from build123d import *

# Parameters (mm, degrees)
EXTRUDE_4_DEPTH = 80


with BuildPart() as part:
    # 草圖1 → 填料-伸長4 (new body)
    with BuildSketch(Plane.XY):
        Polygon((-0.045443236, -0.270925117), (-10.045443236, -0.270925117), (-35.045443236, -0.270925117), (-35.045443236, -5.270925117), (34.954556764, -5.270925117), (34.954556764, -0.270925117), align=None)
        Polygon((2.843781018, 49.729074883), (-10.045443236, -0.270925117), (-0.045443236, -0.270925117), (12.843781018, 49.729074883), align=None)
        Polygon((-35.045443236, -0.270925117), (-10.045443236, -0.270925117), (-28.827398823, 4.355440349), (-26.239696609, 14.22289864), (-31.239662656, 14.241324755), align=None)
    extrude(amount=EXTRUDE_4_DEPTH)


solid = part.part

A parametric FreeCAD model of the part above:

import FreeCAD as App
import Part
import Sketcher
Q = App.Units.Quantity


def add_polygon(sketch, points):
    """Adds a closed chain of lines whose ends are joined by coincident constraints."""
    first, n = sketch.GeometryCount, len(points)
    for a, b in zip(points, points[1:] + points[:1]):
        sketch.addGeometry(Part.LineSegment(App.Vector(*a, 0), App.Vector(*b, 0)), False)
    for i in range(n):
        sketch.addConstraint(Sketcher.Constraint("Coincident", first + i, 2, first + (i + 1) % n, 1))

doc = App.newDocument("Part")
body = doc.addObject("PartDesign::Body", "Body")

sketch1 = body.newObject("Sketcher::SketchObject", "Sketch")
sketch1.AttachmentSupport = (doc.getObject("XY_Plane"), [""])
sketch1.MapMode = "FlatFace"
add_polygon(sketch1, [(-35, -0.3), (-35, -5.3), (35, -5.3), (35, -0.3), (0, -0.3), (12.8, 49.7), (2.8, 49.7), (-10, -0.3), (-28.8, 4.4), (-26.2, 14.2), (-31.2, 14.2)])
sketch1.addConstraint(Sketcher.Constraint("Vertical", 0))
sketch1.addConstraint(Sketcher.Constraint("Horizontal", 1))
sketch1.addConstraint(Sketcher.Constraint("Vertical", 2))
sketch1.addConstraint(Sketcher.Constraint("Horizontal", 3))
sketch1.addConstraint(Sketcher.Constraint("Horizontal", 5))
sketch1.addConstraint(Sketcher.Constraint("Parallel", 4, 6))
sketch1.addConstraint(Sketcher.Constraint("Parallel", 8, 10))
sketch1.addConstraint(Sketcher.Constraint("Horizontal", 3, 2, 6, 2))
sketch1.addConstraint(Sketcher.Constraint("Horizontal", 6, 2, 10, 2))
sketch1.addConstraint(Sketcher.Constraint("DistanceX", 1, 1, 1, 2, Q("70 mm")))
sketch1.addConstraint(Sketcher.Constraint("DistanceX", 3, 2, 3, 1, Q("35 mm")))
sketch1.addConstraint(Sketcher.Constraint("DistanceX", 5, 2, 5, 1, Q("10 mm")))
sketch1.addConstraint(Sketcher.Constraint("DistanceY", 0, 2, 0, 1, Q("5 mm")))
sketch1.addConstraint(Sketcher.Constraint("Distance", 9, Q("5 mm")))
sketch1.addConstraint(Sketcher.Constraint("DistanceY", 3, 2, 4, 2, Q("50 mm")))
sketch1.addConstraint(Sketcher.Constraint("Distance", 4, Q("51.634602 mm")))
sketch1.addConstraint(Sketcher.Constraint("DistanceX", 7, 2, -1, 1, Q("28.827399 mm")))
sketch1.addConstraint(Sketcher.Constraint("DistanceY", -1, 1, 8, 2, Q("14.222899 mm")))
sketch1.addConstraint(Sketcher.Constraint("Distance", 7, Q("19.343348 mm")))
sketch1.addConstraint(Sketcher.Constraint("Distance", 10, Q("15.002978 mm")))
sketch1.addConstraint(Sketcher.Constraint("DistanceX", -1, 1, 4, 2, Q("12.843781 mm")))
sketch1.addConstraint(Sketcher.Constraint("DistanceY", -1, 1, 7, 2, Q("4.35544 mm")))
pad1 = body.newObject("PartDesign::Pad", "Pad")
pad1.Profile = sketch1
pad1.Length = 80

doc.recompute()
